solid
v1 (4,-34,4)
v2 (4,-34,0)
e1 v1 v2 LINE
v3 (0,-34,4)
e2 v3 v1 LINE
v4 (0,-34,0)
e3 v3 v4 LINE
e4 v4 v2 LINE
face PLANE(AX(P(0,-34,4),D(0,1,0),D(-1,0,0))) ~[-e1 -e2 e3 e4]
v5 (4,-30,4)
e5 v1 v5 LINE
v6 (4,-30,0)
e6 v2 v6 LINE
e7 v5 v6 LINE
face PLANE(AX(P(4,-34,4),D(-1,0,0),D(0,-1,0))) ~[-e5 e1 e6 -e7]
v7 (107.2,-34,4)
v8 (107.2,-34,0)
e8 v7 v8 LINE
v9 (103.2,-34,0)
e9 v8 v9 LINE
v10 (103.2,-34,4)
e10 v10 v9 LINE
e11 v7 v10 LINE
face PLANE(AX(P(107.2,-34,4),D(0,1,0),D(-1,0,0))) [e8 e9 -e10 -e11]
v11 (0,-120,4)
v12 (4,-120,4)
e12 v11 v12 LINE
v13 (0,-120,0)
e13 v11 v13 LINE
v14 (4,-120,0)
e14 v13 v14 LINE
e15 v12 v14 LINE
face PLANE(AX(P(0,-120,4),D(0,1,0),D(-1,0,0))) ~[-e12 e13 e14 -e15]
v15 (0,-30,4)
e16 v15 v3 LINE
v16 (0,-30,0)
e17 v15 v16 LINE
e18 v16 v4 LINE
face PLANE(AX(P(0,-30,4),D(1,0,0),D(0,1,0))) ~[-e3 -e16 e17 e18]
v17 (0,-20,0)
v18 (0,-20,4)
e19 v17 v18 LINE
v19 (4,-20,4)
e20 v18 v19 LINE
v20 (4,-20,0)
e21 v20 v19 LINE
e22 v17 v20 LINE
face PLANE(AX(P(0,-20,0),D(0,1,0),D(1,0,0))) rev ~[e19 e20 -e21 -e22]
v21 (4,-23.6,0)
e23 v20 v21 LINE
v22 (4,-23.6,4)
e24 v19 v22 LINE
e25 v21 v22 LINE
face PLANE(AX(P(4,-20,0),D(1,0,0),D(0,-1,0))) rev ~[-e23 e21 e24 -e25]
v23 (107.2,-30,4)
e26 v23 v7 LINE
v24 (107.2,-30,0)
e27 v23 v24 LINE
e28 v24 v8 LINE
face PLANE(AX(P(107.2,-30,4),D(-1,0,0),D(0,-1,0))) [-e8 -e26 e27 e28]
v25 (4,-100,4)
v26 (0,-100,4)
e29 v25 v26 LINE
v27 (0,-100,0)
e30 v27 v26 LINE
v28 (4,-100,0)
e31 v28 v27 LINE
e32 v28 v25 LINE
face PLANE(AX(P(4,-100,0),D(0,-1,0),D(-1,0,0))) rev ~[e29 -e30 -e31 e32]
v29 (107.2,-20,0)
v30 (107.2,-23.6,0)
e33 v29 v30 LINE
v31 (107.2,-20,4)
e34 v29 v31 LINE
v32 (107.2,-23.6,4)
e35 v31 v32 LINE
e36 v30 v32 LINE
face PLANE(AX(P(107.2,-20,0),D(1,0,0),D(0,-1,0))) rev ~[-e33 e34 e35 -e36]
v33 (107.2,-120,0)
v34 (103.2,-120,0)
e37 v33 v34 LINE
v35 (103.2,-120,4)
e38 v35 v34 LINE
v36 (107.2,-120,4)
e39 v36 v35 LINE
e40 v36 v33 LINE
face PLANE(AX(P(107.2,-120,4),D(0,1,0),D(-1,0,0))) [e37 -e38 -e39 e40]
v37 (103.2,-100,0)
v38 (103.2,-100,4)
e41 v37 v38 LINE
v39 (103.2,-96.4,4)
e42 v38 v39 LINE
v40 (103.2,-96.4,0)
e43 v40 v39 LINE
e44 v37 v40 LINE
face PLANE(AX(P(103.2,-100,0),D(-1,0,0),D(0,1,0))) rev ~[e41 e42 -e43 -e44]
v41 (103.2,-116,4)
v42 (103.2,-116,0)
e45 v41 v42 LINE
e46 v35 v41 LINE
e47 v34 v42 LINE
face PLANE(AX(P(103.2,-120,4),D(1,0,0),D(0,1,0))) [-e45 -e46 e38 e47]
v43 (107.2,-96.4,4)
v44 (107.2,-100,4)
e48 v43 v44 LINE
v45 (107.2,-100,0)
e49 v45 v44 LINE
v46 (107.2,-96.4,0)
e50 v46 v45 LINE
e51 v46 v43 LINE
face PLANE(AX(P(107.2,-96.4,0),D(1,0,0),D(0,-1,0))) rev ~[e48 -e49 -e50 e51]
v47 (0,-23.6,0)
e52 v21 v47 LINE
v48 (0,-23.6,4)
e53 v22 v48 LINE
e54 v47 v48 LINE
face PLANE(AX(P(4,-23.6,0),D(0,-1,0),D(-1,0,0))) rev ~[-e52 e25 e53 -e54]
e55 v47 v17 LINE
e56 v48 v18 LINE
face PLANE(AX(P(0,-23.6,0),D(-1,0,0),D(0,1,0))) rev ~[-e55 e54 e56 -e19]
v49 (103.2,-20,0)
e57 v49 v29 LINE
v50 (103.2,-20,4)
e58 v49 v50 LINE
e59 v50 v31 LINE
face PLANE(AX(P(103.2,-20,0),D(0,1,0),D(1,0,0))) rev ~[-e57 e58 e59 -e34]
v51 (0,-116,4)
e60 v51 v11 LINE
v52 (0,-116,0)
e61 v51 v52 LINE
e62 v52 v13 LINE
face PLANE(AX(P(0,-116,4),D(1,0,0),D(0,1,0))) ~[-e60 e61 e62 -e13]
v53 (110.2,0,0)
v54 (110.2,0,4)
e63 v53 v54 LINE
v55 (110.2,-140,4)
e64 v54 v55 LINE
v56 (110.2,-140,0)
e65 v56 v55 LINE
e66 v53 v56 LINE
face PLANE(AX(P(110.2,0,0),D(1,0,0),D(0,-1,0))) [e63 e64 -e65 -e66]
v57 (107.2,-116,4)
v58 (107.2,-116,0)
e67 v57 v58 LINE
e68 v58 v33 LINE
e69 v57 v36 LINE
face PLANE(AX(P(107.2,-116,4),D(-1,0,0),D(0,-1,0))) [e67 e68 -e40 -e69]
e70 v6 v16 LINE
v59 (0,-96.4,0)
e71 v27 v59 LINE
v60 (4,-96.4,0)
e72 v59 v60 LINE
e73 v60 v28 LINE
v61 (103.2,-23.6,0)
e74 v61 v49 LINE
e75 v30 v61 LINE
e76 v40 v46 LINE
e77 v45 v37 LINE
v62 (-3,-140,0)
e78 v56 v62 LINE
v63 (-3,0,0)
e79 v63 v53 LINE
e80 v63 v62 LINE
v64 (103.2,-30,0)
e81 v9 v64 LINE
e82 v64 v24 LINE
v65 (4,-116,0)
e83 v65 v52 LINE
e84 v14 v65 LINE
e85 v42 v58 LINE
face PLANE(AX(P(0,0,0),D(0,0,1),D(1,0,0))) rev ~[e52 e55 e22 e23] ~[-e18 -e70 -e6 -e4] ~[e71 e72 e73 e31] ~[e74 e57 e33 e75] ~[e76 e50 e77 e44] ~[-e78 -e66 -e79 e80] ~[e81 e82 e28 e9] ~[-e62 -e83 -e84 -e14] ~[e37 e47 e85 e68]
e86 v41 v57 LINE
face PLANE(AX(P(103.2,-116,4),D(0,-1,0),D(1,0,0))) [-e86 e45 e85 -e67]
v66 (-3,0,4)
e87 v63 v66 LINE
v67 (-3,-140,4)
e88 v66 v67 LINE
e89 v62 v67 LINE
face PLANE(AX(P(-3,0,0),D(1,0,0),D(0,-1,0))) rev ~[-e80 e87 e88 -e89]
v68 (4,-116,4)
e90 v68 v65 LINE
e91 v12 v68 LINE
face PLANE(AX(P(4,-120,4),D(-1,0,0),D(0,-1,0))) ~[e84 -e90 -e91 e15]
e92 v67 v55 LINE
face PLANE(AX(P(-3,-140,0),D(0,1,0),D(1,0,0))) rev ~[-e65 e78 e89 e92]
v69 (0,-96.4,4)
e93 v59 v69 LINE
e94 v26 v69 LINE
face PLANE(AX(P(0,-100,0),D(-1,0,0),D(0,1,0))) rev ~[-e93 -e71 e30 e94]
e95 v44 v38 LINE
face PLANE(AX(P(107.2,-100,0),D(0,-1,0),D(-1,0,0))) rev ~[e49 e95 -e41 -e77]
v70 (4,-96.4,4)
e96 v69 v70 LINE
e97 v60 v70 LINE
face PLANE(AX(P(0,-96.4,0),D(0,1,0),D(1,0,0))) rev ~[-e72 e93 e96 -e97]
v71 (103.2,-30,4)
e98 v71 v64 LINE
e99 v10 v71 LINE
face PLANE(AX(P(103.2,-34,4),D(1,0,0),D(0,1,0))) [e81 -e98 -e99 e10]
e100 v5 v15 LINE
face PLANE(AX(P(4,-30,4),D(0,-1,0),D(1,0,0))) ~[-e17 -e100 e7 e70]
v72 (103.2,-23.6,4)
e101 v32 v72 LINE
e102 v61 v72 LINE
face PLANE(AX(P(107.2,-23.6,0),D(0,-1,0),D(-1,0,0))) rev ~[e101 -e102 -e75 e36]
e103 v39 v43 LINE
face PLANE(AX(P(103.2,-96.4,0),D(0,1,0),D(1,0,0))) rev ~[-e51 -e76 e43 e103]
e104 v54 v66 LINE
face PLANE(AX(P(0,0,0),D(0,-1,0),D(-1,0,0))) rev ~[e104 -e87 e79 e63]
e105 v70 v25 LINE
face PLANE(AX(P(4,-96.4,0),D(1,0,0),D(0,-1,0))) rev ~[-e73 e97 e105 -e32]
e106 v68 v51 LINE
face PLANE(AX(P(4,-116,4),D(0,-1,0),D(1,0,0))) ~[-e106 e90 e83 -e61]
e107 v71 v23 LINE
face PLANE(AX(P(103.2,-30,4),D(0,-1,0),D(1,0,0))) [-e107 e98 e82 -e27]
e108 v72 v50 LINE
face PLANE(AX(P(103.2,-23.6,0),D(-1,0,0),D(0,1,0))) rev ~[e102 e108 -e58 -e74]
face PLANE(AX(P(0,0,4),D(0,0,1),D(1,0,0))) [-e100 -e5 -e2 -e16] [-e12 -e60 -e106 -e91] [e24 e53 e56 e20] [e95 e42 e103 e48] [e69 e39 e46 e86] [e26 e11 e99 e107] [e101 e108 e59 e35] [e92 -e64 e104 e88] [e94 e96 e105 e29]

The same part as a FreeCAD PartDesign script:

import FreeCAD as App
import Part
import Sketcher


def add_polygon(sketch, points):
    """Adds a closed chain of lines whose ends are joined by coincident constraints."""
    first, n = sketch.GeometryCount, len(points)
    for a, b in zip(points, points[1:] + points[:1]):
        sketch.addGeometry(Part.LineSegment(App.Vector(*a, 0), App.Vector(*b, 0)), False)
    for i in range(n):
        sketch.addConstraint(Sketcher.Constraint("Coincident", first + i, 2, first + (i + 1) % n, 1))

doc = App.newDocument("Part")
body = doc.addObject("PartDesign::Body", "Body")

# Sketch on XY plane
sketch1 = body.newObject("Sketcher::SketchObject", "Sketch")
sketch1.AttachmentSupport = (doc.getObject("XY_Plane"), [""])
sketch1.MapMode = "FlatFace"
add_polygon(sketch1, [(-3, -140), (110.2, -140), (110.2, 0), (-3, 0)])  # lines 0-3
add_polygon(sketch1, [(0, -23.6), (0, -20), (4, -20), (4, -23.6)])  # lines 4-7
add_polygon(sketch1, [(0, -100), (0, -96.4), (4, -96.4), (4, -100)])  # lines 8-11
add_polygon(sketch1, [(103.2, -20), (107.2, -20), (107.2, -23.6), (103.2, -23.6)])  # lines 12-15
add_polygon(sketch1, [(103.2, -96.4), (107.2, -96.4), (107.2, -100), (103.2, -100)])  # lines 16-19
sketch1.addConstraint([
    Sketcher.Constraint("Horizontal", 0),
    Sketcher.Constraint("Vertical", 1),
    Sketcher.Constraint("Horizontal", 2),
    Sketcher.Constraint("Vertical", 3),
    Sketcher.Constraint("Vertical", 4),
    Sketcher.Constraint("Horizontal", 5),
    Sketcher.Constraint("Vertical", 6),
    Sketcher.Constraint("Horizontal", 7),
    Sketcher.Constraint("Vertical", 8),
    Sketcher.Constraint("Horizontal", 9),
    Sketcher.Constraint("Vertical", 10),
    Sketcher.Constraint("Horizontal", 11),
    Sketcher.Constraint("Horizontal", 12),
    Sketcher.Constraint("Vertical", 13),
    Sketcher.Constraint("Horizontal", 14),
    Sketcher.Constraint("Vertical", 15),
    Sketcher.Constraint("Horizontal", 16),
    Sketcher.Constraint("Vertical", 17),
    Sketcher.Constraint("Horizontal", 18),
    Sketcher.Constraint("Vertical", 19),
    Sketcher.Constraint("PointOnObject", 1, 2, -1),
    Sketcher.Constraint("PointOnObject", 4, 2, -2),
    Sketcher.Constraint("PointOnObject", 8, 2, -2),
    Sketcher.Constraint("Horizontal", 5, 2, 12, 2),
    Sketcher.Constraint("Horizontal", 7, 2, 13, 2),
    Sketcher.Constraint("Horizontal", 9, 2, 16, 2),
    Sketcher.Constraint("Horizontal", 11, 2, 17, 2),
    Sketcher.Constraint("Vertical", 6, 2, 9, 2),
    Sketcher.Constraint("Vertical", 13, 2, 16, 2),
    Sketcher.Constraint("Vertical", 15, 2, 18, 2),
    Sketcher.Constraint("Equal", 11, 12),
    Sketcher.Constraint("Equal", 6, 8),
    Sketcher.Constraint("DistanceX", 2, 2, -1, 1, 3.0),
    Sketcher.Constraint("DistanceX", 12, 2, 1, 2, 3.0),
    Sketcher.Constraint("DistanceX", 5, 1, 5, 2, 4.0),
    Sketcher.Constraint("DistanceY", 1, 1, 1, 2, 140.0),
    Sketcher.Constraint("DistanceX", 0, 1, 0, 2, 113.2),
    Sketcher.Constraint("DistanceY", 4, 1, 4, 2, 3.6),
    Sketcher.Constraint("DistanceY", 4, 2, -1, 1, 20.0),
    Sketcher.Constraint("DistanceY", 10, 2, -1, 1, 100.0),
])
pad1 = body.newObject("PartDesign::Pad", "Pad")
pad1.Profile = sketch1
pad1.Length = 4

# Sketch on XY plane
sketch2 = body.newObject("Sketcher::SketchObject", "Sketch001")
sketch2.AttachmentSupport = (doc.getObject("XY_Plane"), [""])
sketch2.MapMode = "FlatFace"
sketch2.AttachmentOffset = App.Placement(App.Vector(0, 0, 4), App.Rotation())
add_polygon(sketch2, [(103.2, -120), (107.2, -120), (107.2, -116), (103.2, -116)])  # lines 0-3
add_polygon(sketch2, [(103.2, -34), (107.2, -34), (107.2, -30), (103.2, -30)])  # lines 4-7
sketch2.addConstraint([
    Sketcher.Constraint("Horizontal", 0),
    Sketcher.Constraint("Vertical", 1),
    Sketcher.Constraint("Horizontal", 2),
    Sketcher.Constraint("Vertical", 3),
    Sketcher.Constraint("Horizontal", 4),
    Sketcher.Constraint("Vertical", 5),
    Sketcher.Constraint("Horizontal", 6),
    Sketcher.Constraint("Vertical", 7),
    Sketcher.Constraint("Vertical", 1, 2, 4, 2),
    Sketcher.Constraint("Vertical", 3, 2, 6, 2),
    Sketcher.Constraint("Equal", 6, 1),
    Sketcher.Constraint("Equal", 3, 5),
    Sketcher.Constraint("DistanceX", 0, 1, 0, 2, 4.0),
    Sketcher.Constraint("DistanceY", 5, 2, -1, 1, 30.0),
    Sketcher.Constraint("DistanceY", 0, 2, -1, 1, 120.0),
    Sketcher.Constraint("DistanceX", -1, 1, 0, 2, 107.2),
])
pocket1 = body.newObject("PartDesign::Pocket", "Pocket")
pocket1.Profile = sketch2
pocket1.Length = 10
doc.recompute()

datumplane = body.newObject("PartDesign::Plane", "DatumPlane")
datumplane.AttachmentSupport = (doc.getObject("YZ_Plane"), [""])
datumplane.MapMode = "FlatFace"
datumplane.AttachmentOffset = App.Placement(App.Vector(0, 0, 53.6), App.Rotation())
mirrored = body.newObject("PartDesign::Mirrored", "Mirrored")
mirrored.Originals = [pocket1]
mirrored.MirrorPlane = (datumplane, [""])
body.Tip = mirrored

doc.recompute()
